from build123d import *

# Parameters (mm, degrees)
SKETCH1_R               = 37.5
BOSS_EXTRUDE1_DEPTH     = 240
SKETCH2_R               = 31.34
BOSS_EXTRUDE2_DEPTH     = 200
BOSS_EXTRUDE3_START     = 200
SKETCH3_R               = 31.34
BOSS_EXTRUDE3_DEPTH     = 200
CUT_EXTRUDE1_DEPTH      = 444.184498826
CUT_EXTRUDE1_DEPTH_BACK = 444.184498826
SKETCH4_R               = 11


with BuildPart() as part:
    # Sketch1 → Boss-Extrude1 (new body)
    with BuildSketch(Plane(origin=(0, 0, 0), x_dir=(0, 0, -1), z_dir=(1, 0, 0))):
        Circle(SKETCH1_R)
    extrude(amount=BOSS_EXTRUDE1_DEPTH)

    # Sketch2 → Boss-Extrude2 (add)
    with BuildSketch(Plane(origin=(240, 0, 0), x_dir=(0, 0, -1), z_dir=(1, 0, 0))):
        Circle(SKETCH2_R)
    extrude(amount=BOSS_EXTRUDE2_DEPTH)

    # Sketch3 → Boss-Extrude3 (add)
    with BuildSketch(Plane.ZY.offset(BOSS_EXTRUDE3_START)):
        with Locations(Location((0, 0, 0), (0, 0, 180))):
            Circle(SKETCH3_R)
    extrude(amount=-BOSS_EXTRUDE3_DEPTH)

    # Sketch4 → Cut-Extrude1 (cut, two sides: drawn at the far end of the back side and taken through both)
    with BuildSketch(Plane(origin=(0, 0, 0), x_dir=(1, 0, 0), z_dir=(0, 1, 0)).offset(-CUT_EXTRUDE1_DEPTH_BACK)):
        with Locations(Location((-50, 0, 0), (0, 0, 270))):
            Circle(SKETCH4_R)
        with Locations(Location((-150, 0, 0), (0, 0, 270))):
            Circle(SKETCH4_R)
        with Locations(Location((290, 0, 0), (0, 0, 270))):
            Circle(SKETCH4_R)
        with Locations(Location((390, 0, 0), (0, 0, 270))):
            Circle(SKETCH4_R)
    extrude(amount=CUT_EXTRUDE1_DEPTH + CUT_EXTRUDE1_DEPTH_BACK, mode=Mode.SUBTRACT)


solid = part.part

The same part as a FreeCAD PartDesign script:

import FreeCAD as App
import Part
import Sketcher

V = App.Vector

doc = App.newDocument("Part")
body = doc.addObject("PartDesign::Body", "Body")

# Sketch on YZ plane
sketch1 = body.newObject("Sketcher::SketchObject", "Sketch")
sketch1.AttachmentSupport = (doc.getObject("YZ_Plane"), [""])
sketch1.MapMode = "FlatFace"
sketch1.addGeometry(Part.Circle(V(0, 0, 0), V(0, 0, 1), 38), False)
sketch1.addConstraint([
    Sketcher.Constraint("Coincident", 0, 3, -1, 1),
    Sketcher.Constraint("Diameter", 0, 75.0),
])
pad1 = body.newObject("PartDesign::Pad", "Pad")
pad1.Profile = sketch1
pad1.Length = 240

# Sketch on YZ plane
sketch2 = body.newObject("Sketcher::SketchObject", "Sketch001")
sketch2.AttachmentSupport = (doc.getObject("YZ_Plane"), [""])
sketch2.MapMode = "FlatFace"
sketch2.AttachmentOffset = App.Placement(V(0, 0, 240), App.Rotation())
sketch2.addGeometry(Part.Circle(V(0, 0, 0), V(0, 0, 1), 31), False)
sketch2.addConstraint([
    Sketcher.Constraint("Coincident", 0, 3, -1, 1),
    Sketcher.Constraint("Diameter", 0, 62.68),
])
pad2 = body.newObject("PartDesign::Pad", "Pad001")
pad2.Profile = sketch2
pad2.Length = 200

# Sketch on YZ plane
sketch3 = body.newObject("Sketcher::SketchObject", "Sketch002")
sketch3.AttachmentSupport = (doc.getObject("YZ_Plane"), [""])
sketch3.MapMode = "FlatFace"
sketch3.AttachmentOffset = App.Placement(V(0, 0, -200), App.Rotation())
sketch3.addGeometry(Part.Circle(V(0, 0, 0), V(0, 0, 1), 31), False)
sketch3.addConstraint([
    Sketcher.Constraint("Coincident", 0, 3, -1, 1),
    Sketcher.Constraint("Diameter", 0, 62.68),
])
pad3 = body.newObject("PartDesign::Pad", "Pad002")
pad3.Profile = sketch3
pad3.Length = 200

# Sketch on XZ plane
sketch4 = body.newObject("Sketcher::SketchObject", "Sketch003")
sketch4.AttachmentSupport = (doc.getObject("XZ_Plane"), [""])
sketch4.MapMode = "FlatFace"
sketch4.addGeometry([
    Part.Circle(V(-50, 0, 0), V(0, 0, 1), 11),
    Part.Circle(V(-150, 0, 0), V(0, 0, 1), 11),
    Part.Circle(V(290, 0, 0), V(0, 0, 1), 11),
    Part.Circle(V(390, 0, 0), V(0, 0, 1), 11),
], False)
sketch4.addConstraint([
    Sketcher.Constraint("Equal", 0, 1),
    Sketcher.Constraint("Equal", 1, 2),
    Sketcher.Constraint("Equal", 2, 3),
    Sketcher.Constraint("PointOnObject", 0, 3, -1),
    Sketcher.Constraint("PointOnObject", 1, 3, -1),
    Sketcher.Constraint("PointOnObject", 2, 3, -1),
    Sketcher.Constraint("PointOnObject", 3, 3, -1),
    Sketcher.Constraint("Diameter", 0, 22.0),
    Sketcher.Constraint("DistanceX", 0, 3, -1, 1, 50.0),
    Sketcher.Constraint("DistanceX", 1, 3, -1, 1, 150.0),
    Sketcher.Constraint("DistanceX", -1, 1, 2, 3, 290.0),
    Sketcher.Constraint("DistanceX", -1, 1, 3, 3, 390.0),
])
pocket1 = body.newObject("PartDesign::Pocket", "Pocket")
pocket1.Profile = sketch4
pocket1.Type = "ThroughAll"
pocket1.Midplane = True

doc.recompute()
